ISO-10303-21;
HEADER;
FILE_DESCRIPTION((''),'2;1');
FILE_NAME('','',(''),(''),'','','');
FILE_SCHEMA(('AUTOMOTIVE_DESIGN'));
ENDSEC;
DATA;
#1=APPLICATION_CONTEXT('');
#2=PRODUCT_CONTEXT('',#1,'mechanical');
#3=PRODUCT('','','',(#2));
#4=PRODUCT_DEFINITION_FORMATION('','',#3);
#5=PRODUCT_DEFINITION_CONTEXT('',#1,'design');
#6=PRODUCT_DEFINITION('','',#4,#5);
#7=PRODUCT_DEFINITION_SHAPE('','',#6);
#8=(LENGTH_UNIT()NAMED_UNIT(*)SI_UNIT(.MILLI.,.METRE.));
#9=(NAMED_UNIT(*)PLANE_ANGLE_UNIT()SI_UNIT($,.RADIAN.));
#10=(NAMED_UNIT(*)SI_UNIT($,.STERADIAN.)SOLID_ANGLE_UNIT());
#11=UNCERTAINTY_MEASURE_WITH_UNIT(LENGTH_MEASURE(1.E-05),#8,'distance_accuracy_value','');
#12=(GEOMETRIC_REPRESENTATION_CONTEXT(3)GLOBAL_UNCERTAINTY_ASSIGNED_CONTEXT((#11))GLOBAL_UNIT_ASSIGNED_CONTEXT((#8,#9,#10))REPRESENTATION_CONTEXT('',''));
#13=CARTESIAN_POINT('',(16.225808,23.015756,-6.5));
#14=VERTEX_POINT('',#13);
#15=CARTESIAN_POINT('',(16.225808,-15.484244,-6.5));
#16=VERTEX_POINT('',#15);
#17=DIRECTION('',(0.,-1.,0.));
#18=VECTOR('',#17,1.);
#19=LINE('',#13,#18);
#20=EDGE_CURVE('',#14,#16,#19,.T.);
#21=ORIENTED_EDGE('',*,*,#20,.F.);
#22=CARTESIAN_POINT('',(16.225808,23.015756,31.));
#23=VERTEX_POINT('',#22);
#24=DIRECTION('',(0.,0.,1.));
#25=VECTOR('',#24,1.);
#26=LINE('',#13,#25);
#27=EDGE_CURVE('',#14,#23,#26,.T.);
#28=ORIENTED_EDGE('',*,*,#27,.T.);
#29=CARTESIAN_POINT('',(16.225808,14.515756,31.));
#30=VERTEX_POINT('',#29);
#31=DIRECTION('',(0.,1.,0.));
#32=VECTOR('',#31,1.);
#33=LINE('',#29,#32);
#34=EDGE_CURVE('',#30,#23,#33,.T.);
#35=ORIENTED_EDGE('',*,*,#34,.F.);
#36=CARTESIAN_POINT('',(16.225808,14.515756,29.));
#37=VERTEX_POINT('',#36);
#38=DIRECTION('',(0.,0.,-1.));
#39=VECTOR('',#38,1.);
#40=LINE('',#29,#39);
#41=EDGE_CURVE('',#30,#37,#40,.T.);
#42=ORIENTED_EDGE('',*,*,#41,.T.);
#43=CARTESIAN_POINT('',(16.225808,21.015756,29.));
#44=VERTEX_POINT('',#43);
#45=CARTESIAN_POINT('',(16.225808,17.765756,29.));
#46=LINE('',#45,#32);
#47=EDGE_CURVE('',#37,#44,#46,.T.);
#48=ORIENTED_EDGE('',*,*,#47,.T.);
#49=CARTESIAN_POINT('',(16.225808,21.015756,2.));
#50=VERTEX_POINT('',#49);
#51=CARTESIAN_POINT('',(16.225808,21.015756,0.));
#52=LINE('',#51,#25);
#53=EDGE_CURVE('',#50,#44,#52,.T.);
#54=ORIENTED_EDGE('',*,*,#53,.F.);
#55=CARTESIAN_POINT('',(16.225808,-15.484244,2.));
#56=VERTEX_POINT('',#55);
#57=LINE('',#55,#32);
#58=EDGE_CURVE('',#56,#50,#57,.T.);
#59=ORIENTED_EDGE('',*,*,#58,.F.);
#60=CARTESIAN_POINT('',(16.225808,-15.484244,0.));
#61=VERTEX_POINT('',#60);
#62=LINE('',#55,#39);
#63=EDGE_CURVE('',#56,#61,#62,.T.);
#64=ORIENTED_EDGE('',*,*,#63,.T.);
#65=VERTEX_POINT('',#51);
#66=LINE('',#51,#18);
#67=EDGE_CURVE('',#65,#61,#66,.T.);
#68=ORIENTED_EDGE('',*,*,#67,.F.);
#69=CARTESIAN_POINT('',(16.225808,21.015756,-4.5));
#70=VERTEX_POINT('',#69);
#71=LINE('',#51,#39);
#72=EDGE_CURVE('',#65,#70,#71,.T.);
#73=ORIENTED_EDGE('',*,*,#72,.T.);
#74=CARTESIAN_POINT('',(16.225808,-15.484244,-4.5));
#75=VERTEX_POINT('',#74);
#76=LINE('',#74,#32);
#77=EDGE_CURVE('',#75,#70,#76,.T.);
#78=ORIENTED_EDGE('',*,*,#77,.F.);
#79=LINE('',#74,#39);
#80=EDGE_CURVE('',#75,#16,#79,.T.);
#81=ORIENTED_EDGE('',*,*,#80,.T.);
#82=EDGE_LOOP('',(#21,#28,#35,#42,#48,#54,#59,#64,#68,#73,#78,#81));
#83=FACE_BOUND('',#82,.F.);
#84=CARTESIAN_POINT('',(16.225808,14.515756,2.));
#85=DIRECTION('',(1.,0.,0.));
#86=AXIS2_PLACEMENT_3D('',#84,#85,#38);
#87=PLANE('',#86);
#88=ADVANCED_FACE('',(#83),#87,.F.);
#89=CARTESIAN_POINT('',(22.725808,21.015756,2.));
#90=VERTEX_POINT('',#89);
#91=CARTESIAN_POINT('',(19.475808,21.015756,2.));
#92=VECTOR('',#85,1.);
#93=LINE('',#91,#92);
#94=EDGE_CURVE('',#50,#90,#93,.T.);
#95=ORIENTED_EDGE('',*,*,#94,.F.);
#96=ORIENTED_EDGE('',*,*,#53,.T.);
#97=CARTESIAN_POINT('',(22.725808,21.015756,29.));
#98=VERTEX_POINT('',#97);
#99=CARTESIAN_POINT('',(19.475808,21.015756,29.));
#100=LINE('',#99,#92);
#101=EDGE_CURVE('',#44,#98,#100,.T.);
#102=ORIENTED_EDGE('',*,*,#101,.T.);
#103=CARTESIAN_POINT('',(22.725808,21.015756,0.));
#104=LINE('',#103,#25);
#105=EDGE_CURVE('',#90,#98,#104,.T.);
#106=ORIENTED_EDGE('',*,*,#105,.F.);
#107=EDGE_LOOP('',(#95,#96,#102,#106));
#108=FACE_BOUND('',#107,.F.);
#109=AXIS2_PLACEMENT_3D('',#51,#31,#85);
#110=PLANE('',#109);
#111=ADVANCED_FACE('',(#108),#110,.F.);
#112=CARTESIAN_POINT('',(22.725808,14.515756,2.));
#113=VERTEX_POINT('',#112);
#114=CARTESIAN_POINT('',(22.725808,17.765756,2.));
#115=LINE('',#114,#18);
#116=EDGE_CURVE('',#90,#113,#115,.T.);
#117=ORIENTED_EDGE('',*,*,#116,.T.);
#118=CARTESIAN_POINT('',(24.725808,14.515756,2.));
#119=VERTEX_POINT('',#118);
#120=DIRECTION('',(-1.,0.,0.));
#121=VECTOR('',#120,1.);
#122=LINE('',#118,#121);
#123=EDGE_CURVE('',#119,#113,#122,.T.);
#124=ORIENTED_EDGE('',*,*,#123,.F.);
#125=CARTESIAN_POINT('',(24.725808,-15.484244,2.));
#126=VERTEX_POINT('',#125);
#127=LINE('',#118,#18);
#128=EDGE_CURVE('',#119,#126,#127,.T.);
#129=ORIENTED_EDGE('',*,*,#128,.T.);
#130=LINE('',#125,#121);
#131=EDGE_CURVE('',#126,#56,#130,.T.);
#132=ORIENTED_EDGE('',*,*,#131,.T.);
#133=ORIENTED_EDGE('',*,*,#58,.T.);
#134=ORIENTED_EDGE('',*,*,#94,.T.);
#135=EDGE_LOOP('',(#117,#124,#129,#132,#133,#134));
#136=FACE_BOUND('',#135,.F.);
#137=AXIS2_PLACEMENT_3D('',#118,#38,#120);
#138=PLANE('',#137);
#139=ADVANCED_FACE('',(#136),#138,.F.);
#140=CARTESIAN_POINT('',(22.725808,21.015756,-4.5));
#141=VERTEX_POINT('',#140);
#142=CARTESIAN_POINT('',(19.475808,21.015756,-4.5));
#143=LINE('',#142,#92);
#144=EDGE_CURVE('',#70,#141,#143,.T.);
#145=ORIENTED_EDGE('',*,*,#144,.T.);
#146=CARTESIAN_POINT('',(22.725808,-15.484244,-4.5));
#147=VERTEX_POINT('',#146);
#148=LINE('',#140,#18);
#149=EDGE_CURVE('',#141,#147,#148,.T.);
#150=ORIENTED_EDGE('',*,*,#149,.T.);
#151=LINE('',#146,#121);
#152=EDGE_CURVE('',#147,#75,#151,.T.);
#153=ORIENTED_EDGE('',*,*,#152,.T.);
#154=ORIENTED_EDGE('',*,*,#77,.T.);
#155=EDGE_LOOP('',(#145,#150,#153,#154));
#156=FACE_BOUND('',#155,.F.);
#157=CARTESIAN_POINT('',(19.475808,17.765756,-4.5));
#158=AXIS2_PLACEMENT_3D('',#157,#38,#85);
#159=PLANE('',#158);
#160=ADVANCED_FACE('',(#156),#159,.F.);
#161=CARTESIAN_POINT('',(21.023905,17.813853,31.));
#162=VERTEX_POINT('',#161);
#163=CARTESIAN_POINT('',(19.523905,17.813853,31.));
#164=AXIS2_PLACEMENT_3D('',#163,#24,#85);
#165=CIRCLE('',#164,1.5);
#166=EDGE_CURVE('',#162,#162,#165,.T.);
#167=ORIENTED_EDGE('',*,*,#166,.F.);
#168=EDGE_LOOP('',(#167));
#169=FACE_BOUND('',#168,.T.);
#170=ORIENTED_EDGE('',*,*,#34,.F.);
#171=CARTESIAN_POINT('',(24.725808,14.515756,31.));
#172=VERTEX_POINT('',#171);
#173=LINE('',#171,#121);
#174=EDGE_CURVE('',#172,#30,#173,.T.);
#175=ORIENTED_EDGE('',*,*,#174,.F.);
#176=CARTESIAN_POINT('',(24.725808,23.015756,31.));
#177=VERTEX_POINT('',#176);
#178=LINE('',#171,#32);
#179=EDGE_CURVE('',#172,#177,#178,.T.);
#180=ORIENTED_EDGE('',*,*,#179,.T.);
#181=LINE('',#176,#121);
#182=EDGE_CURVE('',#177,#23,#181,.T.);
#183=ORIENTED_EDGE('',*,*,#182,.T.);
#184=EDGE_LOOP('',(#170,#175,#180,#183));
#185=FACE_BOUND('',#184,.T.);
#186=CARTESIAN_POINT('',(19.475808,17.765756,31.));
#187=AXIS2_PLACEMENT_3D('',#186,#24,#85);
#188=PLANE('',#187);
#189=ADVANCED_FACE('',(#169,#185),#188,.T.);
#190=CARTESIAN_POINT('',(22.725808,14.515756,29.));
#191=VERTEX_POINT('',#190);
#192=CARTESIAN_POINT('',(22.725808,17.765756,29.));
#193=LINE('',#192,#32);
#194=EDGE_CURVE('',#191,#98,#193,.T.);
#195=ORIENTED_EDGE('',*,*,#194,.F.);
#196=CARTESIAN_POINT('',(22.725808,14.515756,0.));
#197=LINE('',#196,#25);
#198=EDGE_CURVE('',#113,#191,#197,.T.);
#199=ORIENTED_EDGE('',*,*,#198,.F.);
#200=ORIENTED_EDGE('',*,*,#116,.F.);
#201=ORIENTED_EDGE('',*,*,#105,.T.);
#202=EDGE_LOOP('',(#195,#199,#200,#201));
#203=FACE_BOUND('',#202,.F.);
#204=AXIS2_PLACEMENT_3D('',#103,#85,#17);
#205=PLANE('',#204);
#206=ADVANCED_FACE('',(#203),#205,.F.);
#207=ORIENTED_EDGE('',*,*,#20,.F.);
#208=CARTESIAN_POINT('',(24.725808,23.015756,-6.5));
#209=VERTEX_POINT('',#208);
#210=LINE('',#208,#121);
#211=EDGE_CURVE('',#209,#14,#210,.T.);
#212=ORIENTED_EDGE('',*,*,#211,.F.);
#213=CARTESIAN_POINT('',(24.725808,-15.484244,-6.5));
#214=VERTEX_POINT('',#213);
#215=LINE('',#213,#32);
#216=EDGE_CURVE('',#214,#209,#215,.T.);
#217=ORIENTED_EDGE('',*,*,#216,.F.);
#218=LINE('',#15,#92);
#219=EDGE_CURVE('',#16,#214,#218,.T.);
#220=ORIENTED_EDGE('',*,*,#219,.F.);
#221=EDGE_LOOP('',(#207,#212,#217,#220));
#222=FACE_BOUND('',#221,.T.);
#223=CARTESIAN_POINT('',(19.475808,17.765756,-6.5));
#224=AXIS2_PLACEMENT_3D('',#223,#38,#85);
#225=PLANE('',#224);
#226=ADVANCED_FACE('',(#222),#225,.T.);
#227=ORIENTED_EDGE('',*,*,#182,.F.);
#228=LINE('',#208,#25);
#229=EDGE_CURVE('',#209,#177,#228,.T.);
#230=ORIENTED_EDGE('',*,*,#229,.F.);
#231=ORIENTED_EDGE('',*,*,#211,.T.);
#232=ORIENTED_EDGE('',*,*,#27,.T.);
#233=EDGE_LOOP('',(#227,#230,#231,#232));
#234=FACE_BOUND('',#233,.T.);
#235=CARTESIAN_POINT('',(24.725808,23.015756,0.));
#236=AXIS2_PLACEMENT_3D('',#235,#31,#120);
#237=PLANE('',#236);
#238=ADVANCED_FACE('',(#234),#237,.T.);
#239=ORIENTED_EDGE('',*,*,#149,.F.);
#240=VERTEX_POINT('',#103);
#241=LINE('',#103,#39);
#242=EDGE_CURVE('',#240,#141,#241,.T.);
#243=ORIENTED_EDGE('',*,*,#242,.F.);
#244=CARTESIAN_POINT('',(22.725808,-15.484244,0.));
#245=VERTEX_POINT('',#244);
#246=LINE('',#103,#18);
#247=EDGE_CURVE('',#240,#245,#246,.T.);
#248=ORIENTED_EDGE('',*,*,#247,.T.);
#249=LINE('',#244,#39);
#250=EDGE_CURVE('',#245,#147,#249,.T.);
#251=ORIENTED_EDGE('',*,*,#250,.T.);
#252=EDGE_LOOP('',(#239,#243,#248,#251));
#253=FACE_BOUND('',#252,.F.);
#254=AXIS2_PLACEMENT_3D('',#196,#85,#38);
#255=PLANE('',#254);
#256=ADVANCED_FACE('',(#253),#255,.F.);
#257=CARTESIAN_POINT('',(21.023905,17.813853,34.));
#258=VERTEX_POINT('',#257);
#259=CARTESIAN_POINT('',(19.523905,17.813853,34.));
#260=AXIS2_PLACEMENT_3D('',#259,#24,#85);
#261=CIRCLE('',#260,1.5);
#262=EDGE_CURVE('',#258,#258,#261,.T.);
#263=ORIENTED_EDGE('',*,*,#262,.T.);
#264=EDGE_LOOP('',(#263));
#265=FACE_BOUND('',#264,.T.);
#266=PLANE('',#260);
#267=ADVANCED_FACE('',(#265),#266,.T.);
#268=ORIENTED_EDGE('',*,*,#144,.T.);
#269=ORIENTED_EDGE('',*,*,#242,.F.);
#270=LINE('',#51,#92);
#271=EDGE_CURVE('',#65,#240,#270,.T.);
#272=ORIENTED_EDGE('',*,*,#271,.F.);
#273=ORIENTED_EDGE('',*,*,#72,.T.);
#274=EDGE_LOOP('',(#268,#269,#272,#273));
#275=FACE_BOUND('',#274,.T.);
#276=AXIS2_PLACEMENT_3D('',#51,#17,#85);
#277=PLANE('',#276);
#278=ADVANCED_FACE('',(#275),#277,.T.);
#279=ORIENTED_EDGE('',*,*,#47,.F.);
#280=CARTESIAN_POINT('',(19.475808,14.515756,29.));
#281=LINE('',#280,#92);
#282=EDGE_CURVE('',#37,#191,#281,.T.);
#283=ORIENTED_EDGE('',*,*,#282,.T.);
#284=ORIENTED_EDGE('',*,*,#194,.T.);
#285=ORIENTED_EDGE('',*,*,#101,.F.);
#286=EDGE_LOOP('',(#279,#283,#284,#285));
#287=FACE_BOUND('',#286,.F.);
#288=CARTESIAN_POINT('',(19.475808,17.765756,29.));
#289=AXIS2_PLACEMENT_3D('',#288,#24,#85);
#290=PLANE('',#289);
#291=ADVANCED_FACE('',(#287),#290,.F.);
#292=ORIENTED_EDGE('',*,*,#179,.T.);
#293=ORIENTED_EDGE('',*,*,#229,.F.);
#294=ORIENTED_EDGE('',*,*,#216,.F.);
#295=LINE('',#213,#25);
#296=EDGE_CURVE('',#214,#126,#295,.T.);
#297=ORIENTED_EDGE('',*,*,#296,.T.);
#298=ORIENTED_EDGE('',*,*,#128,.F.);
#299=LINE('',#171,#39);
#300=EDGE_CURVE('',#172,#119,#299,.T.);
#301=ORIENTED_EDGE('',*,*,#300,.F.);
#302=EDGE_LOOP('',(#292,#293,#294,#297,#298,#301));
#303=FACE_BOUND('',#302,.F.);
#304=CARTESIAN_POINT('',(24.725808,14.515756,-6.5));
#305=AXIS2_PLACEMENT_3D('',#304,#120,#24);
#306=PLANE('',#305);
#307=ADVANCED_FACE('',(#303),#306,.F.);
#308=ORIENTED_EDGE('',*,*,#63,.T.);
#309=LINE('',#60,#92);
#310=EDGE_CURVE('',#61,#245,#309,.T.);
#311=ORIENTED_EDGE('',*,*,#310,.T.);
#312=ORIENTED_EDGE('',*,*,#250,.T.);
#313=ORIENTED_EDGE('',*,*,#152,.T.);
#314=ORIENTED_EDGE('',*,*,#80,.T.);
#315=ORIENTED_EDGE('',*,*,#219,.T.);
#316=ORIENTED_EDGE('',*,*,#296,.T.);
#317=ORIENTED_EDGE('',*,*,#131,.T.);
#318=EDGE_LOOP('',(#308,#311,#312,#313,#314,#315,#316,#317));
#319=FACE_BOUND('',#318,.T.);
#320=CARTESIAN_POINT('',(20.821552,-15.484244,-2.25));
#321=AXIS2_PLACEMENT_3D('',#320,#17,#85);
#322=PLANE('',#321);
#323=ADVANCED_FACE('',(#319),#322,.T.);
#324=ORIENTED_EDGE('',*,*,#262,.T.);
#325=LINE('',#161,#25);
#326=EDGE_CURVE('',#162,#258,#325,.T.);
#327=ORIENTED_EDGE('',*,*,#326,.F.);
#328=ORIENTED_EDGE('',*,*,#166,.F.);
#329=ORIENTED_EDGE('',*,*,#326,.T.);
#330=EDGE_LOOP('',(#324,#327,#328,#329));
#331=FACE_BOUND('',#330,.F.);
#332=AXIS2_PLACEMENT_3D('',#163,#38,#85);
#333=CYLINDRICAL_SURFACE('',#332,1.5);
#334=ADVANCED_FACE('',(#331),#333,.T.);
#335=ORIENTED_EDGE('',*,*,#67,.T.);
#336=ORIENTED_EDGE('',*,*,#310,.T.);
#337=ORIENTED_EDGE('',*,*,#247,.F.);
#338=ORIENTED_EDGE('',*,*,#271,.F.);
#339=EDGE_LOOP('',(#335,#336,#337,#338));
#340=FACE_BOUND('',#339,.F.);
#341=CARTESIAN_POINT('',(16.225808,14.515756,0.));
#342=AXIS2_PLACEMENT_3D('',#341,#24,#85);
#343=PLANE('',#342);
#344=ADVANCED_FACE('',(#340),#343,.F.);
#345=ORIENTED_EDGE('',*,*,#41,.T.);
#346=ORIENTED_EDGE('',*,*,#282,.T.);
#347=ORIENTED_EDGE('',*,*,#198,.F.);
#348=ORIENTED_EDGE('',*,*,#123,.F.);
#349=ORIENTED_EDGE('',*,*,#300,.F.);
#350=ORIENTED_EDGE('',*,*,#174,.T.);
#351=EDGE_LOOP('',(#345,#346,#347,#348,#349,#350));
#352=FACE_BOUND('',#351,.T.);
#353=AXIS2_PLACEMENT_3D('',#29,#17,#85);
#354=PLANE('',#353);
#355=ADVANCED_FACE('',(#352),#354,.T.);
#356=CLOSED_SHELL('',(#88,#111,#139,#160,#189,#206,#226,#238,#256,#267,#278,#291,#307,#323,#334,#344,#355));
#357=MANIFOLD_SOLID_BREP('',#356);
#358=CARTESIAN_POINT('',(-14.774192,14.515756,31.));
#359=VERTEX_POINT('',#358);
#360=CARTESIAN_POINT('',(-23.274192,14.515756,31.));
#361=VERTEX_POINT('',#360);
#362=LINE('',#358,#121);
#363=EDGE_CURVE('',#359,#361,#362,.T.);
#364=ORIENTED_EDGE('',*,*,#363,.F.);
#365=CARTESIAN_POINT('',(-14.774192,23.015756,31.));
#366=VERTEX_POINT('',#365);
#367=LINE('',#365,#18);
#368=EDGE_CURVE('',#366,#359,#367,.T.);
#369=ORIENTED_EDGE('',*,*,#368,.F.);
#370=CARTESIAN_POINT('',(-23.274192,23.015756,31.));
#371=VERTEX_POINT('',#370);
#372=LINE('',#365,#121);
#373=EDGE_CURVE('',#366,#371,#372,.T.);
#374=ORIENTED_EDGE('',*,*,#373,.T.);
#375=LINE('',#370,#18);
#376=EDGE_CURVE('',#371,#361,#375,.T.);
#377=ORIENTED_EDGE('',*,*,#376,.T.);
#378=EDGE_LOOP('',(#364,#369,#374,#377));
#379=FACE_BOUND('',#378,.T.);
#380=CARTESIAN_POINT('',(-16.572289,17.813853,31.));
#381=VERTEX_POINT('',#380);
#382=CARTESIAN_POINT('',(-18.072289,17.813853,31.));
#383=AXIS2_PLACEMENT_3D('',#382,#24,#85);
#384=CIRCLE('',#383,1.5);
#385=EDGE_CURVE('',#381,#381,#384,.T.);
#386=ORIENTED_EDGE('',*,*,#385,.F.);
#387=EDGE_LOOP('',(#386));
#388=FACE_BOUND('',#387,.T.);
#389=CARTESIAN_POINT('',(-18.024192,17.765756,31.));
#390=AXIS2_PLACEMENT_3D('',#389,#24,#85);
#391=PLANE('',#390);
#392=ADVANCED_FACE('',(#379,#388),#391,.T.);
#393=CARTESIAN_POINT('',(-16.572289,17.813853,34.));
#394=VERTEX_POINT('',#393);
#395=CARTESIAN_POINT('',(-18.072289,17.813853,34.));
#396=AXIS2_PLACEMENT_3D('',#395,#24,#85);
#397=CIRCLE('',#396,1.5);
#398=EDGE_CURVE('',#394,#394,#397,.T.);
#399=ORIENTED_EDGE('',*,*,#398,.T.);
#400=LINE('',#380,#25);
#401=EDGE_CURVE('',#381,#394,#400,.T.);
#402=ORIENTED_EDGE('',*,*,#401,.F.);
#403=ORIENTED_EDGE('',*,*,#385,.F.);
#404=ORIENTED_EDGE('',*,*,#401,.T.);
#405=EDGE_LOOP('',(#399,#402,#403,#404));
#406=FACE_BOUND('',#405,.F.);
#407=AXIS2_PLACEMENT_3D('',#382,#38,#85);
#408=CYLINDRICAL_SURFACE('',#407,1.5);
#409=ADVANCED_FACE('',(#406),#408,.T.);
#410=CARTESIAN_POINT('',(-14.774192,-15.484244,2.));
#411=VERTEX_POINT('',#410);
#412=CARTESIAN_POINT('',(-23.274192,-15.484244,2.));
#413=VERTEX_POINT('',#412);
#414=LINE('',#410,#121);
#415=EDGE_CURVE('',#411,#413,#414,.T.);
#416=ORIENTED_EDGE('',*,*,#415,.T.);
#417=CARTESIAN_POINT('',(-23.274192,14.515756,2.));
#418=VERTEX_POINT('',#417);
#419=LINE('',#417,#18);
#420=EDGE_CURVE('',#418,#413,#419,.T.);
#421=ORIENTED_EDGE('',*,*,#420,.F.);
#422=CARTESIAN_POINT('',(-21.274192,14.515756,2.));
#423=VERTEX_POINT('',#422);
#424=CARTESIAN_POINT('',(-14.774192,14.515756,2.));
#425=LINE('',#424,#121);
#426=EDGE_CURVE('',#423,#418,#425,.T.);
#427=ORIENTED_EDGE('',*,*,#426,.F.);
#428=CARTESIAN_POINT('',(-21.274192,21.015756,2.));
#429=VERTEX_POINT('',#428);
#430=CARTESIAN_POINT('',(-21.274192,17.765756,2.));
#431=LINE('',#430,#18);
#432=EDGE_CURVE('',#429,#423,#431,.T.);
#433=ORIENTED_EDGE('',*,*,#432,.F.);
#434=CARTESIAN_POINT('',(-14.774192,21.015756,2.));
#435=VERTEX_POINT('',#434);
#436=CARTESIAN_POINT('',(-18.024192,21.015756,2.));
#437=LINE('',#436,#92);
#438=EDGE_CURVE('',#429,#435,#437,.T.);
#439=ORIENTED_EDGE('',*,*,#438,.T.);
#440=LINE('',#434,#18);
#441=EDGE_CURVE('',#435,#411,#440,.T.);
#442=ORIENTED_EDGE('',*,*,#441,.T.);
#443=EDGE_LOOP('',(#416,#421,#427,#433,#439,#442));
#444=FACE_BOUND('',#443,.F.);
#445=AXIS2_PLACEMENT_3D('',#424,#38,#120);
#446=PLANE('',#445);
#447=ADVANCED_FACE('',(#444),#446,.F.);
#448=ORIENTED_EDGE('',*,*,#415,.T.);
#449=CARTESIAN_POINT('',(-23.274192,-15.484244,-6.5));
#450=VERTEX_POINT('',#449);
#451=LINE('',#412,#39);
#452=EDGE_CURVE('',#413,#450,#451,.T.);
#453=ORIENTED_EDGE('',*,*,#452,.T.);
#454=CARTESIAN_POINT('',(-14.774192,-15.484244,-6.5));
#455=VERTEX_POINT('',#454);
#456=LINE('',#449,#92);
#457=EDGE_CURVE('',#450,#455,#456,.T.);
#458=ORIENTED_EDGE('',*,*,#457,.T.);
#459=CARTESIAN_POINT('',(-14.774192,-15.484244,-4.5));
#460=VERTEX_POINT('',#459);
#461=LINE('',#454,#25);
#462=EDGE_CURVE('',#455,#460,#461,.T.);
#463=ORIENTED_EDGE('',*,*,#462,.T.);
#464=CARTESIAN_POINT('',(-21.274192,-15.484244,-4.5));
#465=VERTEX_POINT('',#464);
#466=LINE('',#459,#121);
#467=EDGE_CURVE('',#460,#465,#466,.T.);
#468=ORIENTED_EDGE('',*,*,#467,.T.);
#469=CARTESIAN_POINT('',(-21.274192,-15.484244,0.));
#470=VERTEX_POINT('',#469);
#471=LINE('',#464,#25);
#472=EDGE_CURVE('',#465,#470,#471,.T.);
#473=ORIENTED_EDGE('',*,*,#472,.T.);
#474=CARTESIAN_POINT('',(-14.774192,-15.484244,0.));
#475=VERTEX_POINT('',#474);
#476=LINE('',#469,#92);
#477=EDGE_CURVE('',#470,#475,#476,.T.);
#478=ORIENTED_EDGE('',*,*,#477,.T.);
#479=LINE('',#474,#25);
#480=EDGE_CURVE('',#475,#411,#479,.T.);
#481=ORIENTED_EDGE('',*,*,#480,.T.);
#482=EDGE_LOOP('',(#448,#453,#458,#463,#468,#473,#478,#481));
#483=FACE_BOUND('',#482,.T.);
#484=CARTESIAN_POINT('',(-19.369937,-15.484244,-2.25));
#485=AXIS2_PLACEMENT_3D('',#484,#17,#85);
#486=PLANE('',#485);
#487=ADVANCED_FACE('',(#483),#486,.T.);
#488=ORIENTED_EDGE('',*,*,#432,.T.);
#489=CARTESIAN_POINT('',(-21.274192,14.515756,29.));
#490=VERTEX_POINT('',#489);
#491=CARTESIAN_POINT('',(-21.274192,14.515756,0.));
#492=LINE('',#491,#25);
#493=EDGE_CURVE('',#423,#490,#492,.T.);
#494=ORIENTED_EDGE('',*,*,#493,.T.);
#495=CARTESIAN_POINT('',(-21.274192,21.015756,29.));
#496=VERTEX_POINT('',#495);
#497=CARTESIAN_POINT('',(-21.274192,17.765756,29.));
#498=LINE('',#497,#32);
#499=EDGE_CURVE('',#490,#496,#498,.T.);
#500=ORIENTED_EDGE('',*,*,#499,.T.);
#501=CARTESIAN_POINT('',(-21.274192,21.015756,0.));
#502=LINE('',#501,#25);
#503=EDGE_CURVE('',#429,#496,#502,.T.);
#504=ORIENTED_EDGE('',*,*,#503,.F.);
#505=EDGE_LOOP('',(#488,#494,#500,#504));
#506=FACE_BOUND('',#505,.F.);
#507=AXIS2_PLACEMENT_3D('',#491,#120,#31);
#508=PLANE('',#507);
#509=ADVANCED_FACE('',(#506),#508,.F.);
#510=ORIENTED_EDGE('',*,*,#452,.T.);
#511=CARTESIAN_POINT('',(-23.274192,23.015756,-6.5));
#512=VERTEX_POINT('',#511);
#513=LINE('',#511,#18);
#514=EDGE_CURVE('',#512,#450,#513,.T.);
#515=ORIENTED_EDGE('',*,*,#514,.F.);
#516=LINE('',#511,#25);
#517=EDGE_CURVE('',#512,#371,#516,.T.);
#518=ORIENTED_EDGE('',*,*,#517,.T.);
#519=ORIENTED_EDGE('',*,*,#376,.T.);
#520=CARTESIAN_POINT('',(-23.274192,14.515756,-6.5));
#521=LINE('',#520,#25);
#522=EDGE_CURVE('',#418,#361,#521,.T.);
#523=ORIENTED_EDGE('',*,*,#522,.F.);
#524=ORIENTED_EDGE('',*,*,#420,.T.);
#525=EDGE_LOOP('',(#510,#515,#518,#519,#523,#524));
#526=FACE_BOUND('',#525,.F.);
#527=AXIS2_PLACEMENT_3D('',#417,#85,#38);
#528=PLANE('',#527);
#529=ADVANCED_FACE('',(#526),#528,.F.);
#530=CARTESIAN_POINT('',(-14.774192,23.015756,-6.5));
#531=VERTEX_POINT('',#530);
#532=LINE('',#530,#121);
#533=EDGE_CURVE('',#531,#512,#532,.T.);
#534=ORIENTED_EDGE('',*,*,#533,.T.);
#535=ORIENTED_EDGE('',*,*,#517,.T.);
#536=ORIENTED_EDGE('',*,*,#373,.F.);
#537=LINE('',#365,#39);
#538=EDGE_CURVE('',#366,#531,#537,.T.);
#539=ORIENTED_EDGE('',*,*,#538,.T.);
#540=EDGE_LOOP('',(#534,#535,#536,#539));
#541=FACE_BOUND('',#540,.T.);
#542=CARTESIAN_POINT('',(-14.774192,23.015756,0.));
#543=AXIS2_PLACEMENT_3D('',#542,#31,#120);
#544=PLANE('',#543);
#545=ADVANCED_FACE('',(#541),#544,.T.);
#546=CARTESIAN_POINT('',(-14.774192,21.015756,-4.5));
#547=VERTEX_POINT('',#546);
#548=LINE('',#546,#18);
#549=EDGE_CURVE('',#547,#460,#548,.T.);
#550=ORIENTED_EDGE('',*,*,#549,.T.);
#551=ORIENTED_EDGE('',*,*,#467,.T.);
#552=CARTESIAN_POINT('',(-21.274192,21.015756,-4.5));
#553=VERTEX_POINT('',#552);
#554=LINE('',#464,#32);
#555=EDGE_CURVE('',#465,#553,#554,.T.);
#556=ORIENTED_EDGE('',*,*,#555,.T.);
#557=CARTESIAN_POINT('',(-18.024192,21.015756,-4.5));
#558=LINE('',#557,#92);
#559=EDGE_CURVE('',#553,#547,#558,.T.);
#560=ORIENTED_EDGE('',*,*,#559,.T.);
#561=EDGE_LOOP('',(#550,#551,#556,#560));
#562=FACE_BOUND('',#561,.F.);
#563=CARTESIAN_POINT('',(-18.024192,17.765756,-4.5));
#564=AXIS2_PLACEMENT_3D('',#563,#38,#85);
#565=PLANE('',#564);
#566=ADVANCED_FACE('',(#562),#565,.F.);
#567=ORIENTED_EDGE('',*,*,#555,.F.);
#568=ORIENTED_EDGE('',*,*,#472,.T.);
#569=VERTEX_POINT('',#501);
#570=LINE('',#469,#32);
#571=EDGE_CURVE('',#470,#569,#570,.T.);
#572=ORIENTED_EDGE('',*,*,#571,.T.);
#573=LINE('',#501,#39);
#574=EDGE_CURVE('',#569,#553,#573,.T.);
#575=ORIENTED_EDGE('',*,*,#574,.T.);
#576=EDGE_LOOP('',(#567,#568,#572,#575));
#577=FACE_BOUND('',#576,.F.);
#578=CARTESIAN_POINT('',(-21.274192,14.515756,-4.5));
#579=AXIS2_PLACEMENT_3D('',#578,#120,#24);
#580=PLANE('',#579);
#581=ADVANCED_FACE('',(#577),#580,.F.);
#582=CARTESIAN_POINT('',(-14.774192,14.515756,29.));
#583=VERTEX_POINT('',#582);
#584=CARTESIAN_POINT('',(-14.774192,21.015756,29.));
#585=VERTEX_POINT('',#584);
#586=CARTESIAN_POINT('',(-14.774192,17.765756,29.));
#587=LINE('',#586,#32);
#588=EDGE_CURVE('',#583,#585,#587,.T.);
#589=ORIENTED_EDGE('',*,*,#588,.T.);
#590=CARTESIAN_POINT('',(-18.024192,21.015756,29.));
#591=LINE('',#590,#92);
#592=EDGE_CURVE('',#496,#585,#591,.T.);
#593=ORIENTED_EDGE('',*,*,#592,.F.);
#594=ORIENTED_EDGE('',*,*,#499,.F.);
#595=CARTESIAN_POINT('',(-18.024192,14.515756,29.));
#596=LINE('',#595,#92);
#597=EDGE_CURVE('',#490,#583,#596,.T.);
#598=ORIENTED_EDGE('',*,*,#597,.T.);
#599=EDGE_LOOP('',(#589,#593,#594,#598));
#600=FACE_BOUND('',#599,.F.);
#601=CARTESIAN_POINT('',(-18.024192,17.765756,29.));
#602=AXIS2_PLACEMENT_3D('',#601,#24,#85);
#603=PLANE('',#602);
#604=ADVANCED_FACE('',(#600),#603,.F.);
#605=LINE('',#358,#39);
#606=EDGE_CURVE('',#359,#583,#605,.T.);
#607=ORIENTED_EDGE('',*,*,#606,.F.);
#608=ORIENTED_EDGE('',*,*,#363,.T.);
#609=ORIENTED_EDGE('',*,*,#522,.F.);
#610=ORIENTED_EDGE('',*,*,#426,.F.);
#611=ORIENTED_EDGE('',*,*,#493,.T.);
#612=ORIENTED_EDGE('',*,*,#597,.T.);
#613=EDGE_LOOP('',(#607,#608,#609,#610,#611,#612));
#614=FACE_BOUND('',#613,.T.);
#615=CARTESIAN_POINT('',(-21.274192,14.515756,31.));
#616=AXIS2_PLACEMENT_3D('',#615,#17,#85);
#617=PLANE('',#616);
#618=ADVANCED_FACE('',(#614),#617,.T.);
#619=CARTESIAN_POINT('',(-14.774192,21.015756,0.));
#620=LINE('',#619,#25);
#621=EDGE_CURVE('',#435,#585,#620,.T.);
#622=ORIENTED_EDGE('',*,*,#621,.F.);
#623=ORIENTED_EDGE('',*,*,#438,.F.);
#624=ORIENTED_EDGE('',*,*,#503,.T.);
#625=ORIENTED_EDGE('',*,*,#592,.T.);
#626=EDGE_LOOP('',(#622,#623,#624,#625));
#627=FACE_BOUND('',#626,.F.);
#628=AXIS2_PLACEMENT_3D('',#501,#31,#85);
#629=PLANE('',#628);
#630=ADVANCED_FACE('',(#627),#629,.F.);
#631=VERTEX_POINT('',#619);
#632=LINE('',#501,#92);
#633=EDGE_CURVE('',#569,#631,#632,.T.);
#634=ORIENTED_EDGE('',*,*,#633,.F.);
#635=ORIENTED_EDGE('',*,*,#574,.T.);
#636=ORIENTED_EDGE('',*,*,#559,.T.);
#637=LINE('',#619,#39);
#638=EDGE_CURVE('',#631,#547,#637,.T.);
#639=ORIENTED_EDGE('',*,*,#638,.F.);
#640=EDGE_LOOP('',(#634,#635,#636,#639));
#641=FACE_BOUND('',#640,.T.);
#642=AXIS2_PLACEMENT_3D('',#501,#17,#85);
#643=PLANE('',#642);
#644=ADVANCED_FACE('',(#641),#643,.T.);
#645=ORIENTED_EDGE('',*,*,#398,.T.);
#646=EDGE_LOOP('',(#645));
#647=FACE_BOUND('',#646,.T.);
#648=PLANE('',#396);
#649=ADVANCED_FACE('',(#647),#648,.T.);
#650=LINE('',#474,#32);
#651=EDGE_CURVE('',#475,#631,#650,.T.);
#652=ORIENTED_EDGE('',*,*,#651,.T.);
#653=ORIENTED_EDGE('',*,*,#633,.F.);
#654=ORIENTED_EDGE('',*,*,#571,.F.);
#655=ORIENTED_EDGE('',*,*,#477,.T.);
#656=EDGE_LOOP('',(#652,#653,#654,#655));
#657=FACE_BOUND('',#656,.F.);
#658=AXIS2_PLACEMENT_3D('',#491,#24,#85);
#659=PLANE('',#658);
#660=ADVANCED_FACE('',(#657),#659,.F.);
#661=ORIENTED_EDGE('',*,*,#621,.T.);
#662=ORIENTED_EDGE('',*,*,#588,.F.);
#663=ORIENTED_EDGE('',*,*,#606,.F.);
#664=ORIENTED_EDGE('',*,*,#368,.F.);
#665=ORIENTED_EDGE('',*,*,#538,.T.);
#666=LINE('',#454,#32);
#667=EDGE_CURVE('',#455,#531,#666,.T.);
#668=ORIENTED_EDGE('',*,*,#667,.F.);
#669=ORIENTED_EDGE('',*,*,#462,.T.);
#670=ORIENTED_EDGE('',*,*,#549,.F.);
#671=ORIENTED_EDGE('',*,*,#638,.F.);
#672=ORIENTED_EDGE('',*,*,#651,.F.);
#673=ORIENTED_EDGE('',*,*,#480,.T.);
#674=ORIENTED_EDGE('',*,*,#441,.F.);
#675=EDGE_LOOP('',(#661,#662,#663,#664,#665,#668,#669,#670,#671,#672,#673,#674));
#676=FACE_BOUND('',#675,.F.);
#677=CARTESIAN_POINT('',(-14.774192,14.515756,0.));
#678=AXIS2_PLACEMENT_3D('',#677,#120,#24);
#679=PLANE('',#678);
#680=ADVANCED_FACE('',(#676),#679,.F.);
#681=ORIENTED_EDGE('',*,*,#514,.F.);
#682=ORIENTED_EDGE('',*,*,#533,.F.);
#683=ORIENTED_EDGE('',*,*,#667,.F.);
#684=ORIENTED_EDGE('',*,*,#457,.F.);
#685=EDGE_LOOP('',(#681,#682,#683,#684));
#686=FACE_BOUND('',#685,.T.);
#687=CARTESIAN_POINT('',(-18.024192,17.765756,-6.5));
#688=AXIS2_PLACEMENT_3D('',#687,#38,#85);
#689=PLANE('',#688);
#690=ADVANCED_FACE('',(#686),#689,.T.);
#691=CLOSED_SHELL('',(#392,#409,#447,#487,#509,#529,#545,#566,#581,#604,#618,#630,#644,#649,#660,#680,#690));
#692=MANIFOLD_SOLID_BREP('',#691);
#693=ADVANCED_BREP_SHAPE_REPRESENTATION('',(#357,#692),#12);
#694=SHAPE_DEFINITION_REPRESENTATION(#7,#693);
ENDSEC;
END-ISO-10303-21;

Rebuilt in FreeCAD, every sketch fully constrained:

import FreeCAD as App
import Part
import Sketcher

V = App.Vector

doc = App.newDocument("Part")
body = doc.addObject("PartDesign::Body", "Body")

# Sketch on XY plane
sketch1 = doc.addObject("Sketcher::SketchObject", "Sketch")
body.addObject(sketch1)
sketch1.AttachmentSupport = (doc.XY_Plane, [""])
sketch1.MapMode = "FlatFace"
sketch1.addGeometry([
    Part.LineSegment(V(-14.774192, 23.015756, 0), V(-23.274192, 23.015756, 0)),  # 0
    Part.LineSegment(V(-23.274192, 23.015756, 0), V(-23.274192, 14.515756, 0)),  # 1
    Part.LineSegment(V(-23.274192, 14.515756, 0), V(-21.274192, 14.515756, 0)),  # 2
    Part.LineSegment(V(-21.274192, 14.515756, 0), V(-21.274192, 21.015756, 0)),  # 3
    Part.LineSegment(V(-21.274192, 21.015756, 0), V(-14.774192, 21.015756, 0)),  # 4
    Part.LineSegment(V(-14.774192, 21.015756, 0), V(-14.774192, 23.015756, 0)),  # 5
], False)
sketch1.addConstraint([
    Sketcher.Constraint("Coincident", 0, 2, 1, 1),
    Sketcher.Constraint("Coincident", 1, 2, 2, 1),
    Sketcher.Constraint("Coincident", 2, 2, 3, 1),
    Sketcher.Constraint("Coincident", 3, 2, 4, 1),
    Sketcher.Constraint("Coincident", 4, 2, 5, 1),
    Sketcher.Constraint("Coincident", 5, 2, 0, 1),
    Sketcher.Constraint("Horizontal", 0),
    Sketcher.Constraint("Vertical", 1),
    Sketcher.Constraint("Horizontal", 2),
    Sketcher.Constraint("Vertical", 3),
    Sketcher.Constraint("Horizontal", 4),
    Sketcher.Constraint("Vertical", 5),
    Sketcher.Constraint("Equal", 0, 1),
    Sketcher.Constraint("Equal", 4, 3),
    Sketcher.Constraint("DistanceX", 2, 1, 2, 2, 2.0),
    Sketcher.Constraint("DistanceX", 0, 2, 0, 1, 8.5),
    Sketcher.Constraint("DistanceX", 0, 2, -1, 1, 23.274192),
    Sketcher.Constraint("DistanceY", -1, 1, 0, 2, 23.015756),
])
pad1 = doc.addObject("PartDesign::Pad", "Pad")
body.addObject(pad1)
pad1.Profile = sketch1
pad1.Length = 31

# Sketch on XY plane
sketch2 = doc.addObject("Sketcher::SketchObject", "Sketch001")
body.addObject(sketch2)
sketch2.AttachmentSupport = (doc.XY_Plane, [""])
sketch2.MapMode = "FlatFace"
sketch2.addGeometry([
    Part.LineSegment(V(-21.274192, 14.515756, 0), V(-21.274192, 21.015756, 0)),
    Part.LineSegment(V(-21.274192, 21.015756, 0), V(-14.774192, 21.015756, 0)),
    Part.LineSegment(V(-14.774192, 21.015756, 0), V(-14.774192, 14.515756, 0)),
    Part.LineSegment(V(-14.774192, 14.515756, 0), V(-21.274192, 14.515756, 0)),
], False)
sketch2.addConstraint([
    Sketcher.Constraint("Coincident", 0, 2, 1, 1),
    Sketcher.Constraint("Coincident", 1, 2, 2, 1),
    Sketcher.Constraint("Coincident", 2, 2, 3, 1),
    Sketcher.Constraint("Coincident", 3, 2, 0, 1),
    Sketcher.Constraint("Vertical", 0),
    Sketcher.Constraint("Horizontal", 1),
    Sketcher.Constraint("Vertical", 2),
    Sketcher.Constraint("Horizontal", 3),
    Sketcher.Constraint("Equal", 3, 0),
    Sketcher.Constraint("DistanceX", 1, 1, 1, 2, 6.5),
    Sketcher.Constraint("DistanceX", 0, 2, -1, 1, 21.274192),
    Sketcher.Constraint("DistanceY", -1, 1, 0, 2, 21.015756),
])
pad2 = doc.addObject("PartDesign::Pad", "Pad001")
body.addObject(pad2)
pad2.Profile = sketch2
pad2.Length = 2

# Sketch on XY plane
sketch3 = doc.addObject("Sketcher::SketchObject", "Sketch002")
body.addObject(sketch3)
sketch3.AttachmentSupport = (doc.XY_Plane, [""])
sketch3.MapMode = "FlatFace"
sketch3.addGeometry([
    Part.LineSegment(V(-14.774192, 23.015756, 0), V(-23.274192, 23.015756, 0)),  # 0
    Part.LineSegment(V(-23.274192, 23.015756, 0), V(-23.274192, 14.515756, 0)),  # 1
    Part.LineSegment(V(-23.274192, 14.515756, 0), V(-21.274192, 14.515756, 0)),  # 2
    Part.LineSegment(V(-21.274192, 14.515756, 0), V(-21.274192, 21.015756, 0)),  # 3
    Part.LineSegment(V(-21.274192, 21.015756, 0), V(-14.774192, 21.015756, 0)),  # 4
    Part.LineSegment(V(-14.774192, 21.015756, 0), V(-14.774192, 23.015756, 0)),  # 5
], False)
sketch3.addConstraint([
    Sketcher.Constraint("Coincident", 0, 2, 1, 1),
    Sketcher.Constraint("Coincident", 1, 2, 2, 1),
    Sketcher.Constraint("Coincident", 2, 2, 3, 1),
    Sketcher.Constraint("Coincident", 3, 2, 4, 1),
    Sketcher.Constraint("Coincident", 4, 2, 5, 1),
    Sketcher.Constraint("Coincident", 5, 2, 0, 1),
    Sketcher.Constraint("Horizontal", 0),
    Sketcher.Constraint("Vertical", 1),
    Sketcher.Constraint("Horizontal", 2),
    Sketcher.Constraint("Vertical", 3),
    Sketcher.Constraint("Horizontal", 4),
    Sketcher.Constraint("Vertical", 5),
    Sketcher.Constraint("Equal", 0, 1),
    Sketcher.Constraint("Equal", 4, 3),
    Sketcher.Constraint("DistanceX", 2, 1, 2, 2, 2.0),
    Sketcher.Constraint("DistanceX", 0, 2, 0, 1, 8.5),
    Sketcher.Constraint("DistanceX", 0, 2, -1, 1, 23.274192),
    Sketcher.Constraint("DistanceY", -1, 1, 0, 2, 23.015756),
])
pad3 = doc.addObject("PartDesign::Pad", "Pad002")
body.addObject(pad3)
pad3.Profile = sketch3
pad3.Length = 6.5
pad3.Reversed = True

# Sketch on XY plane
sketch4 = doc.addObject("Sketcher::SketchObject", "Sketch003")
body.addObject(sketch4)
sketch4.AttachmentSupport = (doc.XY_Plane, [""])
sketch4.MapMode = "FlatFace"
sketch4.AttachmentOffset = App.Placement(V(0, 0, -6.5), App.Rotation())
sketch4.addGeometry([
    Part.LineSegment(V(-21.274192, 14.515756, 0), V(-21.274192, 21.015756, 0)),
    Part.LineSegment(V(-21.274192, 21.015756, 0), V(-14.774192, 21.015756, 0)),
    Part.LineSegment(V(-14.774192, 21.015756, 0), V(-14.774192, 14.515756, 0)),
    Part.LineSegment(V(-14.774192, 14.515756, 0), V(-21.274192, 14.515756, 0)),
], False)
sketch4.addConstraint([
    Sketcher.Constraint("Coincident", 0, 2, 1, 1),
    Sketcher.Constraint("Coincident", 1, 2, 2, 1),
    Sketcher.Constraint("Coincident", 2, 2, 3, 1),
    Sketcher.Constraint("Coincident", 3, 2, 0, 1),
    Sketcher.Constraint("Vertical", 0),
    Sketcher.Constraint("Horizontal", 1),
    Sketcher.Constraint("Vertical", 2),
    Sketcher.Constraint("Horizontal", 3),
    Sketcher.Constraint("Equal", 3, 0),
    Sketcher.Constraint("DistanceX", 1, 1, 1, 2, 6.5),
    Sketcher.Constraint("DistanceX", 0, 2, -1, 1, 21.274192),
    Sketcher.Constraint("DistanceY", -1, 1, 0, 2, 21.015756),
])
pad4 = doc.addObject("PartDesign::Pad", "Pad003")
body.addObject(pad4)
pad4.Profile = sketch4
pad4.Length = 2

# Sketch on XY plane
sketch5 = doc.addObject("Sketcher::SketchObject", "Sketch004")
body.addObject(sketch5)
sketch5.AttachmentSupport = (doc.XY_Plane, [""])
sketch5.MapMode = "FlatFace"
sketch5.AttachmentOffset = App.Placement(V(0, 0, 31), App.Rotation())
sketch5.addGeometry([
    Part.LineSegment(V(-21.274192, 21.015756, 0), V(-21.274192, 14.515756, 0)),
    Part.LineSegment(V(-21.274192, 14.515756, 0), V(-14.774192, 14.515756, 0)),
    Part.LineSegment(V(-14.774192, 14.515756, 0), V(-14.774192, 21.015756, 0)),
    Part.LineSegment(V(-14.774192, 21.015756, 0), V(-21.274192, 21.015756, 0)),
], False)
sketch5.addConstraint([
    Sketcher.Constraint("Coincident", 0, 2, 1, 1),
    Sketcher.Constraint("Coincident", 1, 2, 2, 1),
    Sketcher.Constraint("Coincident", 2, 2, 3, 1),
    Sketcher.Constraint("Coincident", 3, 2, 0, 1),
    Sketcher.Constraint("Vertical", 0),
    Sketcher.Constraint("Horizontal", 1),
    Sketcher.Constraint("Vertical", 2),
    Sketcher.Constraint("Horizontal", 3),
    Sketcher.Constraint("Equal", 3, 0),
    Sketcher.Constraint("DistanceX", 1, 1, 1, 2, 6.5),
    Sketcher.Constraint("DistanceX", 0, 2, -1, 1, 21.274192),
    Sketcher.Constraint("DistanceY", -1, 1, 0, 2, 14.515756),
])
pad5 = doc.addObject("PartDesign::Pad", "Pad004")
body.addObject(pad5)
pad5.Profile = sketch5
pad5.Length = 2
pad5.Reversed = True

# Sketch on XY plane
sketch6 = doc.addObject("Sketcher::SketchObject", "Sketch005")
body.addObject(sketch6)
sketch6.AttachmentSupport = (doc.XY_Plane, [""])
sketch6.MapMode = "FlatFace"
sketch6.AttachmentOffset = App.Placement(V(0, 0, 31), App.Rotation())
sketch6.addGeometry(Part.Circle(V(-18.072289, 17.813853, 0), V(0, 0, 1), 1.5), False)
sketch6.addConstraint([
    Sketcher.Constraint("Diameter", 0, 3.0),
    Sketcher.Constraint("DistanceX", 0, 3, -1, 1, 18.072289),
    Sketcher.Constraint("DistanceY", -1, 1, 0, 3, 17.813853),
])
pad6 = doc.addObject("PartDesign::Pad", "Pad005")
body.addObject(pad6)
pad6.Profile = sketch6
pad6.Length = 3

# Sketch on XZ plane
sketch7 = doc.addObject("Sketcher::SketchObject", "Sketch006")
body.addObject(sketch7)
sketch7.AttachmentSupport = (doc.XZ_Plane, [""])
sketch7.MapMode = "FlatFace"
sketch7.AttachmentOffset = App.Placement(V(0, 0, -14.515756), App.Rotation())
sketch7.addGeometry([
    Part.LineSegment(V(-14.774192, 0, 0), V(-14.774192, 2, 0)),  # 0
    Part.LineSegment(V(-14.774192, 2, 0), V(-23.274192, 2, 0)),  # 1
    Part.LineSegment(V(-23.274192, 2, 0), V(-23.274192, -6.5, 0)),  # 2
    Part.LineSegment(V(-23.274192, -6.5, 0), V(-14.774192, -6.5, 0)),  # 3
    Part.LineSegment(V(-14.774192, -6.5, 0), V(-14.774192, -4.5, 0)),  # 4
    Part.LineSegment(V(-14.774192, -4.5, 0), V(-21.274192, -4.5, 0)),  # 5
    Part.LineSegment(V(-21.274192, -4.5, 0), V(-21.274192, 0, 0)),  # 6
    Part.LineSegment(V(-21.274192, 0, 0), V(-14.774192, 0, 0)),  # 7
], False)
sketch7.addConstraint([
    Sketcher.Constraint("Coincident", 0, 2, 1, 1),
    Sketcher.Constraint("Coincident", 1, 2, 2, 1),
    Sketcher.Constraint("Coincident", 2, 2, 3, 1),
    Sketcher.Constraint("Coincident", 3, 2, 4, 1),
    Sketcher.Constraint("Coincident", 4, 2, 5, 1),
    Sketcher.Constraint("Coincident", 5, 2, 6, 1),
    Sketcher.Constraint("Coincident", 6, 2, 7, 1),
    Sketcher.Constraint("Coincident", 7, 2, 0, 1),
    Sketcher.Constraint("Vertical", 0),
    Sketcher.Constraint("Horizontal", 1),
    Sketcher.Constraint("Vertical", 2),
    Sketcher.Constraint("Horizontal", 3),
    Sketcher.Constraint("Vertical", 4),
    Sketcher.Constraint("Horizontal", 5),
    Sketcher.Constraint("Vertical", 6),
    Sketcher.Constraint("Horizontal", 7),
    Sketcher.Constraint("PointOnObject", 6, 2, -1),
    Sketcher.Constraint("Vertical", 0, 2, 3, 2),
    Sketcher.Constraint("Equal", 3, 2),
    Sketcher.Constraint("Equal", 0, 4),
    Sketcher.Constraint("DistanceY", 0, 1, 0, 2, 2.0),
    Sketcher.Constraint("DistanceX", 1, 2, 1, 1, 8.5),
    Sketcher.Constraint("DistanceX", 5, 2, 5, 1, 6.5),
    Sketcher.Constraint("DistanceX", 0, 2, -1, 1, 14.774192),
])
pad7 = doc.addObject("PartDesign::Pad", "Pad006")
body.addObject(pad7)
pad7.Profile = sketch7
pad7.Length = 30
body2 = doc.addObject("PartDesign::Body", "Body001")

# Sketch on XY plane
sketch8 = doc.addObject("Sketcher::SketchObject", "Sketch007")
body2.addObject(sketch8)
sketch8.AttachmentSupport = (doc.getObject("XY_Plane001"), [""])
sketch8.MapMode = "FlatFace"
sketch8.addGeometry([
    Part.LineSegment(V(24.725808, 14.515756, 0), V(24.725808, 23.015756, 0)),  # 0
    Part.LineSegment(V(24.725808, 23.015756, 0), V(16.225808, 23.015756, 0)),  # 1
    Part.LineSegment(V(16.225808, 23.015756, 0), V(16.225808, 21.015756, 0)),  # 2
    Part.LineSegment(V(16.225808, 21.015756, 0), V(22.725808, 21.015756, 0)),  # 3
    Part.LineSegment(V(22.725808, 21.015756, 0), V(22.725808, 14.515756, 0)),  # 4
    Part.LineSegment(V(22.725808, 14.515756, 0), V(24.725808, 14.515756, 0)),  # 5
], False)
sketch8.addConstraint([
    Sketcher.Constraint("Coincident", 0, 2, 1, 1),
    Sketcher.Constraint("Coincident", 1, 2, 2, 1),
    Sketcher.Constraint("Coincident", 2, 2, 3, 1),
    Sketcher.Constraint("Coincident", 3, 2, 4, 1),
    Sketcher.Constraint("Coincident", 4, 2, 5, 1),
    Sketcher.Constraint("Coincident", 5, 2, 0, 1),
    Sketcher.Constraint("Vertical", 0),
    Sketcher.Constraint("Horizontal", 1),
    Sketcher.Constraint("Vertical", 2),
    Sketcher.Constraint("Horizontal", 3),
    Sketcher.Constraint("Vertical", 4),
    Sketcher.Constraint("Horizontal", 5),
    Sketcher.Constraint("Equal", 1, 0),
    Sketcher.Constraint("Equal", 5, 2),
    Sketcher.Constraint("DistanceX", 5, 1, 5, 2, 2.0),
    Sketcher.Constraint("DistanceX", 1, 2, 1, 1, 8.5),
    Sketcher.Constraint("DistanceX", -1, 1, 0, 2, 24.725808),
    Sketcher.Constraint("DistanceY", -1, 1, 0, 2, 23.015756),
])
pad8 = doc.addObject("PartDesign::Pad", "Pad007")
body2.addObject(pad8)
pad8.Profile = sketch8
pad8.Length = 31

# Sketch on XY plane
sketch9 = doc.addObject("Sketcher::SketchObject", "Sketch008")
body2.addObject(sketch9)
sketch9.AttachmentSupport = (doc.getObject("XY_Plane001"), [""])
sketch9.MapMode = "FlatFace"
sketch9.addGeometry([
    Part.LineSegment(V(16.225808, 14.515756, 0), V(16.225808, 21.015756, 0)),
    Part.LineSegment(V(16.225808, 21.015756, 0), V(22.725808, 21.015756, 0)),
    Part.LineSegment(V(22.725808, 21.015756, 0), V(22.725808, 14.515756, 0)),
    Part.LineSegment(V(22.725808, 14.515756, 0), V(16.225808, 14.515756, 0)),
], False)
sketch9.addConstraint([
    Sketcher.Constraint("Coincident", 0, 2, 1, 1),
    Sketcher.Constraint("Coincident", 1, 2, 2, 1),
    Sketcher.Constraint("Coincident", 2, 2, 3, 1),
    Sketcher.Constraint("Coincident", 3, 2, 0, 1),
    Sketcher.Constraint("Vertical", 0),
    Sketcher.Constraint("Horizontal", 1),
    Sketcher.Constraint("Vertical", 2),
    Sketcher.Constraint("Horizontal", 3),
    Sketcher.Constraint("Equal", 3, 0),
    Sketcher.Constraint("DistanceX", 1, 1, 1, 2, 6.5),
    Sketcher.Constraint("DistanceX", -1, 1, 0, 2, 16.225808),
    Sketcher.Constraint("DistanceY", -1, 1, 0, 2, 21.015756),
])
pad9 = doc.addObject("PartDesign::Pad", "Pad008")
body2.addObject(pad9)
pad9.Profile = sketch9
pad9.Length = 2

# Sketch on XY plane
sketch10 = doc.addObject("Sketcher::SketchObject", "Sketch009")
body2.addObject(sketch10)
sketch10.AttachmentSupport = (doc.getObject("XY_Plane001"), [""])
sketch10.MapMode = "FlatFace"
sketch10.addGeometry([
    Part.LineSegment(V(24.725808, 14.515756, 0), V(24.725808, 23.015756, 0)),  # 0
    Part.LineSegment(V(24.725808, 23.015756, 0), V(16.225808, 23.015756, 0)),  # 1
    Part.LineSegment(V(16.225808, 23.015756, 0), V(16.225808, 21.015756, 0)),  # 2
    Part.LineSegment(V(16.225808, 21.015756, 0), V(22.725808, 21.015756, 0)),  # 3
    Part.LineSegment(V(22.725808, 21.015756, 0), V(22.725808, 14.515756, 0)),  # 4
    Part.LineSegment(V(22.725808, 14.515756, 0), V(24.725808, 14.515756, 0)),  # 5
], False)
sketch10.addConstraint([
    Sketcher.Constraint("Coincident", 0, 2, 1, 1),
    Sketcher.Constraint("Coincident", 1, 2, 2, 1),
    Sketcher.Constraint("Coincident", 2, 2, 3, 1),
    Sketcher.Constraint("Coincident", 3, 2, 4, 1),
    Sketcher.Constraint("Coincident", 4, 2, 5, 1),
    Sketcher.Constraint("Coincident", 5, 2, 0, 1),
    Sketcher.Constraint("Vertical", 0),
    Sketcher.Constraint("Horizontal", 1),
    Sketcher.Constraint("Vertical", 2),
    Sketcher.Constraint("Horizontal", 3),
    Sketcher.Constraint("Vertical", 4),
    Sketcher.Constraint("Horizontal", 5),
    Sketcher.Constraint("Equal", 1, 0),
    Sketcher.Constraint("Equal", 5, 2),
    Sketcher.Constraint("DistanceX", 5, 1, 5, 2, 2.0),
    Sketcher.Constraint("DistanceX", 1, 2, 1, 1, 8.5),
    Sketcher.Constraint("DistanceX", -1, 1, 0, 2, 24.725808),
    Sketcher.Constraint("DistanceY", -1, 1, 0, 2, 23.015756),
])
pad10 = doc.addObject("PartDesign::Pad", "Pad009")
body2.addObject(pad10)
pad10.Profile = sketch10
pad10.Length = 6.5
pad10.Reversed = True

# Sketch on XY plane
sketch11 = doc.addObject("Sketcher::SketchObject", "Sketch010")
body2.addObject(sketch11)
sketch11.AttachmentSupport = (doc.getObject("XY_Plane001"), [""])
sketch11.MapMode = "FlatFace"
sketch11.AttachmentOffset = App.Placement(V(0, 0, -6.5), App.Rotation())
sketch11.addGeometry([
    Part.LineSegment(V(16.225808, 14.515756, 0), V(16.225808, 21.015756, 0)),
    Part.LineSegment(V(16.225808, 21.015756, 0), V(22.725808, 21.015756, 0)),
    Part.LineSegment(V(22.725808, 21.015756, 0), V(22.725808, 14.515756, 0)),
    Part.LineSegment(V(22.725808, 14.515756, 0), V(16.225808, 14.515756, 0)),
], False)
sketch11.addConstraint([
    Sketcher.Constraint("Coincident", 0, 2, 1, 1),
    Sketcher.Constraint("Coincident", 1, 2, 2, 1),
    Sketcher.Constraint("Coincident", 2, 2, 3, 1),
    Sketcher.Constraint("Coincident", 3, 2, 0, 1),
    Sketcher.Constraint("Vertical", 0),
    Sketcher.Constraint("Horizontal", 1),
    Sketcher.Constraint("Vertical", 2),
    Sketcher.Constraint("Horizontal", 3),
    Sketcher.Constraint("Equal", 3, 0),
    Sketcher.Constraint("DistanceX", 1, 1, 1, 2, 6.5),
    Sketcher.Constraint("DistanceX", -1, 1, 0, 2, 16.225808),
    Sketcher.Constraint("DistanceY", -1, 1, 0, 2, 21.015756),
])
pad11 = doc.addObject("PartDesign::Pad", "Pad010")
body2.addObject(pad11)
pad11.Profile = sketch11
pad11.Length = 2

# Sketch on XY plane
sketch12 = doc.addObject("Sketcher::SketchObject", "Sketch011")
body2.addObject(sketch12)
sketch12.AttachmentSupport = (doc.getObject("XY_Plane001"), [""])
sketch12.MapMode = "FlatFace"
sketch12.AttachmentOffset = App.Placement(V(0, 0, 31), App.Rotation())
sketch12.addGeometry([
    Part.LineSegment(V(16.225808, 21.015756, 0), V(16.225808, 14.515756, 0)),
    Part.LineSegment(V(16.225808, 14.515756, 0), V(22.725808, 14.515756, 0)),
    Part.LineSegment(V(22.725808, 14.515756, 0), V(22.725808, 21.015756, 0)),
    Part.LineSegment(V(22.725808, 21.015756, 0), V(16.225808, 21.015756, 0)),
], False)
sketch12.addConstraint([
    Sketcher.Constraint("Coincident", 0, 2, 1, 1),
    Sketcher.Constraint("Coincident", 1, 2, 2, 1),
    Sketcher.Constraint("Coincident", 2, 2, 3, 1),
    Sketcher.Constraint("Coincident", 3, 2, 0, 1),
    Sketcher.Constraint("Vertical", 0),
    Sketcher.Constraint("Horizontal", 1),
    Sketcher.Constraint("Vertical", 2),
    Sketcher.Constraint("Horizontal", 3),
    Sketcher.Constraint("Equal", 3, 0),
    Sketcher.Constraint("DistanceX", 1, 1, 1, 2, 6.5),
    Sketcher.Constraint("DistanceX", -1, 1, 0, 2, 16.225808),
    Sketcher.Constraint("DistanceY", -1, 1, 0, 2, 14.515756),
])
pad12 = doc.addObject("PartDesign::Pad", "Pad011")
body2.addObject(pad12)
pad12.Profile = sketch12
pad12.Length = 2
pad12.Reversed = True

# Sketch on XY plane
sketch13 = doc.addObject("Sketcher::SketchObject", "Sketch012")
body2.addObject(sketch13)
sketch13.AttachmentSupport = (doc.getObject("XY_Plane001"), [""])
sketch13.MapMode = "FlatFace"
sketch13.AttachmentOffset = App.Placement(V(0, 0, 31), App.Rotation())
sketch13.addGeometry(Part.Circle(V(19.523905, 17.813853, 0), V(0, 0, 1), 1.5), False)
sketch13.addConstraint([
    Sketcher.Constraint("Diameter", 0, 3.0),
    Sketcher.Constraint("DistanceX", -1, 1, 0, 3, 19.523905),
    Sketcher.Constraint("DistanceY", -1, 1, 0, 3, 17.813853),
])
pad13 = doc.addObject("PartDesign::Pad", "Pad012")
body2.addObject(pad13)
pad13.Profile = sketch13
pad13.Length = 3

# Sketch on XZ plane
sketch14 = doc.addObject("Sketcher::SketchObject", "Sketch013")
body2.addObject(sketch14)
sketch14.AttachmentSupport = (doc.getObject("XZ_Plane001"), [""])
sketch14.MapMode = "FlatFace"
sketch14.AttachmentOffset = App.Placement(V(0, 0, -14.515756), App.Rotation())
sketch14.addGeometry([
    Part.LineSegment(V(16.225808, 2, 0), V(16.225808, 0, 0)),  # 0
    Part.LineSegment(V(16.225808, 0, 0), V(22.725808, 0, 0)),  # 1
    Part.LineSegment(V(22.725808, 0, 0), V(22.725808, -4.5, 0)),  # 2
    Part.LineSegment(V(22.725808, -4.5, 0), V(16.225808, -4.5, 0)),  # 3
    Part.LineSegment(V(16.225808, -4.5, 0), V(16.225808, -6.5, 0)),  # 4
    Part.LineSegment(V(16.225808, -6.5, 0), V(24.725808, -6.5, 0)),  # 5
    Part.LineSegment(V(24.725808, -6.5, 0), V(24.725808, 2, 0)),  # 6
    Part.LineSegment(V(24.725808, 2, 0), V(16.225808, 2, 0)),  # 7
], False)
sketch14.addConstraint([
    Sketcher.Constraint("Coincident", 0, 2, 1, 1),
    Sketcher.Constraint("Coincident", 1, 2, 2, 1),
    Sketcher.Constraint("Coincident", 2, 2, 3, 1),
    Sketcher.Constraint("Coincident", 3, 2, 4, 1),
    Sketcher.Constraint("Coincident", 4, 2, 5, 1),
    Sketcher.Constraint("Coincident", 5, 2, 6, 1),
    Sketcher.Constraint("Coincident", 6, 2, 7, 1),
    Sketcher.Constraint("Coincident", 7, 2, 0, 1),
    Sketcher.Constraint("Vertical", 0),
    Sketcher.Constraint("Horizontal", 1),
    Sketcher.Constraint("Vertical", 2),
    Sketcher.Constraint("Horizontal", 3),
    Sketcher.Constraint("Vertical", 4),
    Sketcher.Constraint("Horizontal", 5),
    Sketcher.Constraint("Vertical", 6),
    Sketcher.Constraint("Horizontal", 7),
    Sketcher.Constraint("PointOnObject", 0, 2, -1),
    Sketcher.Constraint("Vertical", 0, 2, 3, 2),
    Sketcher.Constraint("Equal", 0, 4),
    Sketcher.Constraint("Equal", 7, 6),
    Sketcher.Constraint("DistanceY", 0, 2, 0, 1, 2.0),
    Sketcher.Constraint("DistanceX", 1, 1, 1, 2, 6.5),
    Sketcher.Constraint("DistanceX", 5, 1, 5, 2, 8.5),
    Sketcher.Constraint("DistanceX", -1, 1, 0, 2, 16.225808),
])
pad14 = doc.addObject("PartDesign::Pad", "Pad013")
body2.addObject(pad14)
pad14.Profile = sketch14
pad14.Length = 30

doc.recompute()
